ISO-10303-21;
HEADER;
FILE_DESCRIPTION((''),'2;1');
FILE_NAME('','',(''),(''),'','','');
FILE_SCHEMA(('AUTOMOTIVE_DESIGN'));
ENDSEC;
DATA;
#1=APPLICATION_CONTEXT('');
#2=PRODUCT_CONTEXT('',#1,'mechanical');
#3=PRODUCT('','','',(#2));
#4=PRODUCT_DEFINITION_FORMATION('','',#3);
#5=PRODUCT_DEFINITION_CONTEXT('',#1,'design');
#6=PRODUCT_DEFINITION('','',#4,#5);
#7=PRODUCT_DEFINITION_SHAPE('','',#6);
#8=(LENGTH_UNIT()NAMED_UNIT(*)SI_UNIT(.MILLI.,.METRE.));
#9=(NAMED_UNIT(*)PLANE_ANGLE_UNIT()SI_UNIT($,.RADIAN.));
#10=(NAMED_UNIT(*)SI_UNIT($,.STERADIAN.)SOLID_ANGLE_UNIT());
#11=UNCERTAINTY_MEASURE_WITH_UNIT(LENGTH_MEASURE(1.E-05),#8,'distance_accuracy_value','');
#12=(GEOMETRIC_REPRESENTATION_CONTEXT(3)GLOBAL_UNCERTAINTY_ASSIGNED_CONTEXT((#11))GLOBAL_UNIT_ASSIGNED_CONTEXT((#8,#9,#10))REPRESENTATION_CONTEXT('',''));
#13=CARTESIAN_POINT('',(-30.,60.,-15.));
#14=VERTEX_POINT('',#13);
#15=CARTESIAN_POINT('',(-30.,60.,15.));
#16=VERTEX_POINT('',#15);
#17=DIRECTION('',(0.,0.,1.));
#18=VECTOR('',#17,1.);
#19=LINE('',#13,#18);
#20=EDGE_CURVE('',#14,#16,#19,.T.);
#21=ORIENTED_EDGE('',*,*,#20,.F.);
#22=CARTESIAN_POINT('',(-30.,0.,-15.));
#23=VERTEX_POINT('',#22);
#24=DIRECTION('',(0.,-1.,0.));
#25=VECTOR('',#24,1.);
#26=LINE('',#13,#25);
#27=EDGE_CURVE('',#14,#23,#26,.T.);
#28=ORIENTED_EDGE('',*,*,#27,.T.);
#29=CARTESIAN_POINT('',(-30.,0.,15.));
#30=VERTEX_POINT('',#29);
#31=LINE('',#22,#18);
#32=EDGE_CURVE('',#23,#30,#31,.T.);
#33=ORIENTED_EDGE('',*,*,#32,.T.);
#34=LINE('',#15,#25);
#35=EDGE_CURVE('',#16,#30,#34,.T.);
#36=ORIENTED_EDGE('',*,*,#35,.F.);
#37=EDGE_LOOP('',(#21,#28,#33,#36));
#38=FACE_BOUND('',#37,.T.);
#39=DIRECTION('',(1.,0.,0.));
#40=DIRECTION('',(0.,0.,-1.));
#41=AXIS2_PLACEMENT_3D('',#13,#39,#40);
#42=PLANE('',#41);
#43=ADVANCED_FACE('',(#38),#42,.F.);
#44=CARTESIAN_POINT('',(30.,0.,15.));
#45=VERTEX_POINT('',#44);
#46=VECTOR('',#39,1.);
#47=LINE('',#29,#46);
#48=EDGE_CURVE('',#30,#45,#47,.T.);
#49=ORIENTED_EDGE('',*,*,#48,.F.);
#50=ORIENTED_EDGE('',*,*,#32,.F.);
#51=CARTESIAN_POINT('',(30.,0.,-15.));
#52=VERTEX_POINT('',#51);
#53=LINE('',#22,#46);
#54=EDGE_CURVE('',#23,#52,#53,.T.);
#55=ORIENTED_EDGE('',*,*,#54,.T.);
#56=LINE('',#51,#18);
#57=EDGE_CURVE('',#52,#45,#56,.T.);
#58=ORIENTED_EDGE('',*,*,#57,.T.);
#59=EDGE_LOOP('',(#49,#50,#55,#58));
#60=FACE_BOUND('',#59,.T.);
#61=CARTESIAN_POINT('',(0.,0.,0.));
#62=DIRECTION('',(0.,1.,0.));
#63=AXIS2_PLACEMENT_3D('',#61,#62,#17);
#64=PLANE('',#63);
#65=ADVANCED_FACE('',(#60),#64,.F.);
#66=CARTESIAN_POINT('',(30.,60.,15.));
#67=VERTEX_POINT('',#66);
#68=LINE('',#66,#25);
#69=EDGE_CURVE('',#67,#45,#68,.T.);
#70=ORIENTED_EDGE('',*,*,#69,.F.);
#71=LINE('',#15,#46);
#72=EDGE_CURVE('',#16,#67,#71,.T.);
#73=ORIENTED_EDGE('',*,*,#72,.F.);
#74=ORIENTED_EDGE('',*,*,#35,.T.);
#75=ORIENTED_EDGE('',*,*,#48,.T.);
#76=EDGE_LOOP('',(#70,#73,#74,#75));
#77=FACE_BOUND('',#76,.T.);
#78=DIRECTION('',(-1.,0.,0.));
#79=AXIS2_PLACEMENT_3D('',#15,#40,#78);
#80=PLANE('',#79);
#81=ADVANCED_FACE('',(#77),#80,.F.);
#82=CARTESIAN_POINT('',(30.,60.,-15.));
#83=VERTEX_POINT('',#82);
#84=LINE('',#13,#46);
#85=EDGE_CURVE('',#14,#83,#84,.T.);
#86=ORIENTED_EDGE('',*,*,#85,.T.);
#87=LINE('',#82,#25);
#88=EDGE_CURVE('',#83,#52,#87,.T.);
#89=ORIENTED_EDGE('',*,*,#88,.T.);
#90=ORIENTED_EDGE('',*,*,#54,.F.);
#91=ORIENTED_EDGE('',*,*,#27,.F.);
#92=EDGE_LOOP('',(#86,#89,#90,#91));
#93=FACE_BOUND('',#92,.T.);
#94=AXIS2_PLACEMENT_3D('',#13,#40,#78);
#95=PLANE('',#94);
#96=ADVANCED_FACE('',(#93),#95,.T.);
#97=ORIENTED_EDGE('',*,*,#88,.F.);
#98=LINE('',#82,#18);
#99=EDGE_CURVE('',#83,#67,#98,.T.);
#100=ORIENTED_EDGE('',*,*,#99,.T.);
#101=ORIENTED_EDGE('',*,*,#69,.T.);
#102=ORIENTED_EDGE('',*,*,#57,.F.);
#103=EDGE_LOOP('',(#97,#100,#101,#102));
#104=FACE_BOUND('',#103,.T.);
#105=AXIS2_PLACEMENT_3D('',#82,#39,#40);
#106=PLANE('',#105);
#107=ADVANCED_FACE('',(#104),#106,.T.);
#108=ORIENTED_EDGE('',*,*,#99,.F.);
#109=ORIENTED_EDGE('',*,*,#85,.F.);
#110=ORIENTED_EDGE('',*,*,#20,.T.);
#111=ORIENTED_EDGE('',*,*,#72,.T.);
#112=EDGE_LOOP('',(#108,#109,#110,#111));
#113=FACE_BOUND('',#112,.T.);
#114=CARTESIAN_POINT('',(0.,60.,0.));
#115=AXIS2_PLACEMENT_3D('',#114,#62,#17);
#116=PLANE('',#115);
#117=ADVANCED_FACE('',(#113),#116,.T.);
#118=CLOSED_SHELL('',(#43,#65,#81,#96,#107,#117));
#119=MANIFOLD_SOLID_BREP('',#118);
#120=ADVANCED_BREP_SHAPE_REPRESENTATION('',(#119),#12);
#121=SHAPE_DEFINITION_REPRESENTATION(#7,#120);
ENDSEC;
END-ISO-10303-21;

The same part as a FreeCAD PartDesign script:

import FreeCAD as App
import Part
import Sketcher
from FreeCAD import Vector
Q = App.Units.Quantity

doc = App.newDocument("Part")
body = doc.addObject("PartDesign::Body", "Body")

sketch1 = body.newObject("Sketcher::SketchObject", "Sketch")
sketch1.AttachmentSupport = (doc.getObject("XZ_Plane"), [""])
sketch1.MapMode = "FlatFace"
sketch1.addGeometry(Part.LineSegment(Vector(-30, -15, 0), Vector(-30, 15, 0)), False)
sketch1.addGeometry(Part.LineSegment(Vector(-30, 15, 0), Vector(30, 15, 0)), False)
sketch1.addGeometry(Part.LineSegment(Vector(30, 15, 0), Vector(30, -15, 0)), False)
sketch1.addGeometry(Part.LineSegment(Vector(30, -15, 0), Vector(-30, -15, 0)), False)
sketch1.addConstraint(Sketcher.Constraint("Coincident", 0, 2, 1, 1))
sketch1.addConstraint(Sketcher.Constraint("Coincident", 1, 2, 2, 1))
sketch1.addConstraint(Sketcher.Constraint("Coincident", 2, 2, 3, 1))
sketch1.addConstraint(Sketcher.Constraint("Coincident", 3, 2, 0, 1))
sketch1.addConstraint(Sketcher.Constraint("Vertical", 0))
sketch1.addConstraint(Sketcher.Constraint("Horizontal", 1))
sketch1.addConstraint(Sketcher.Constraint("Vertical", 2))
sketch1.addConstraint(Sketcher.Constraint("Horizontal", 3))
sketch1.addConstraint(Sketcher.Constraint("Symmetric", 0, 2, 2, 2, -1, 1))
sketch1.addConstraint(Sketcher.Constraint("DistanceX", 1, 1, 1, 2, Q("60 mm")))
sketch1.addConstraint(Sketcher.Constraint("DistanceY", 0, 1, 0, 2, Q("30 mm")))
pad1 = body.newObject("PartDesign::Pad", "Pad")
pad1.Profile = sketch1
pad1.Length = 60
pad1.Reversed = True

doc.recompute()
